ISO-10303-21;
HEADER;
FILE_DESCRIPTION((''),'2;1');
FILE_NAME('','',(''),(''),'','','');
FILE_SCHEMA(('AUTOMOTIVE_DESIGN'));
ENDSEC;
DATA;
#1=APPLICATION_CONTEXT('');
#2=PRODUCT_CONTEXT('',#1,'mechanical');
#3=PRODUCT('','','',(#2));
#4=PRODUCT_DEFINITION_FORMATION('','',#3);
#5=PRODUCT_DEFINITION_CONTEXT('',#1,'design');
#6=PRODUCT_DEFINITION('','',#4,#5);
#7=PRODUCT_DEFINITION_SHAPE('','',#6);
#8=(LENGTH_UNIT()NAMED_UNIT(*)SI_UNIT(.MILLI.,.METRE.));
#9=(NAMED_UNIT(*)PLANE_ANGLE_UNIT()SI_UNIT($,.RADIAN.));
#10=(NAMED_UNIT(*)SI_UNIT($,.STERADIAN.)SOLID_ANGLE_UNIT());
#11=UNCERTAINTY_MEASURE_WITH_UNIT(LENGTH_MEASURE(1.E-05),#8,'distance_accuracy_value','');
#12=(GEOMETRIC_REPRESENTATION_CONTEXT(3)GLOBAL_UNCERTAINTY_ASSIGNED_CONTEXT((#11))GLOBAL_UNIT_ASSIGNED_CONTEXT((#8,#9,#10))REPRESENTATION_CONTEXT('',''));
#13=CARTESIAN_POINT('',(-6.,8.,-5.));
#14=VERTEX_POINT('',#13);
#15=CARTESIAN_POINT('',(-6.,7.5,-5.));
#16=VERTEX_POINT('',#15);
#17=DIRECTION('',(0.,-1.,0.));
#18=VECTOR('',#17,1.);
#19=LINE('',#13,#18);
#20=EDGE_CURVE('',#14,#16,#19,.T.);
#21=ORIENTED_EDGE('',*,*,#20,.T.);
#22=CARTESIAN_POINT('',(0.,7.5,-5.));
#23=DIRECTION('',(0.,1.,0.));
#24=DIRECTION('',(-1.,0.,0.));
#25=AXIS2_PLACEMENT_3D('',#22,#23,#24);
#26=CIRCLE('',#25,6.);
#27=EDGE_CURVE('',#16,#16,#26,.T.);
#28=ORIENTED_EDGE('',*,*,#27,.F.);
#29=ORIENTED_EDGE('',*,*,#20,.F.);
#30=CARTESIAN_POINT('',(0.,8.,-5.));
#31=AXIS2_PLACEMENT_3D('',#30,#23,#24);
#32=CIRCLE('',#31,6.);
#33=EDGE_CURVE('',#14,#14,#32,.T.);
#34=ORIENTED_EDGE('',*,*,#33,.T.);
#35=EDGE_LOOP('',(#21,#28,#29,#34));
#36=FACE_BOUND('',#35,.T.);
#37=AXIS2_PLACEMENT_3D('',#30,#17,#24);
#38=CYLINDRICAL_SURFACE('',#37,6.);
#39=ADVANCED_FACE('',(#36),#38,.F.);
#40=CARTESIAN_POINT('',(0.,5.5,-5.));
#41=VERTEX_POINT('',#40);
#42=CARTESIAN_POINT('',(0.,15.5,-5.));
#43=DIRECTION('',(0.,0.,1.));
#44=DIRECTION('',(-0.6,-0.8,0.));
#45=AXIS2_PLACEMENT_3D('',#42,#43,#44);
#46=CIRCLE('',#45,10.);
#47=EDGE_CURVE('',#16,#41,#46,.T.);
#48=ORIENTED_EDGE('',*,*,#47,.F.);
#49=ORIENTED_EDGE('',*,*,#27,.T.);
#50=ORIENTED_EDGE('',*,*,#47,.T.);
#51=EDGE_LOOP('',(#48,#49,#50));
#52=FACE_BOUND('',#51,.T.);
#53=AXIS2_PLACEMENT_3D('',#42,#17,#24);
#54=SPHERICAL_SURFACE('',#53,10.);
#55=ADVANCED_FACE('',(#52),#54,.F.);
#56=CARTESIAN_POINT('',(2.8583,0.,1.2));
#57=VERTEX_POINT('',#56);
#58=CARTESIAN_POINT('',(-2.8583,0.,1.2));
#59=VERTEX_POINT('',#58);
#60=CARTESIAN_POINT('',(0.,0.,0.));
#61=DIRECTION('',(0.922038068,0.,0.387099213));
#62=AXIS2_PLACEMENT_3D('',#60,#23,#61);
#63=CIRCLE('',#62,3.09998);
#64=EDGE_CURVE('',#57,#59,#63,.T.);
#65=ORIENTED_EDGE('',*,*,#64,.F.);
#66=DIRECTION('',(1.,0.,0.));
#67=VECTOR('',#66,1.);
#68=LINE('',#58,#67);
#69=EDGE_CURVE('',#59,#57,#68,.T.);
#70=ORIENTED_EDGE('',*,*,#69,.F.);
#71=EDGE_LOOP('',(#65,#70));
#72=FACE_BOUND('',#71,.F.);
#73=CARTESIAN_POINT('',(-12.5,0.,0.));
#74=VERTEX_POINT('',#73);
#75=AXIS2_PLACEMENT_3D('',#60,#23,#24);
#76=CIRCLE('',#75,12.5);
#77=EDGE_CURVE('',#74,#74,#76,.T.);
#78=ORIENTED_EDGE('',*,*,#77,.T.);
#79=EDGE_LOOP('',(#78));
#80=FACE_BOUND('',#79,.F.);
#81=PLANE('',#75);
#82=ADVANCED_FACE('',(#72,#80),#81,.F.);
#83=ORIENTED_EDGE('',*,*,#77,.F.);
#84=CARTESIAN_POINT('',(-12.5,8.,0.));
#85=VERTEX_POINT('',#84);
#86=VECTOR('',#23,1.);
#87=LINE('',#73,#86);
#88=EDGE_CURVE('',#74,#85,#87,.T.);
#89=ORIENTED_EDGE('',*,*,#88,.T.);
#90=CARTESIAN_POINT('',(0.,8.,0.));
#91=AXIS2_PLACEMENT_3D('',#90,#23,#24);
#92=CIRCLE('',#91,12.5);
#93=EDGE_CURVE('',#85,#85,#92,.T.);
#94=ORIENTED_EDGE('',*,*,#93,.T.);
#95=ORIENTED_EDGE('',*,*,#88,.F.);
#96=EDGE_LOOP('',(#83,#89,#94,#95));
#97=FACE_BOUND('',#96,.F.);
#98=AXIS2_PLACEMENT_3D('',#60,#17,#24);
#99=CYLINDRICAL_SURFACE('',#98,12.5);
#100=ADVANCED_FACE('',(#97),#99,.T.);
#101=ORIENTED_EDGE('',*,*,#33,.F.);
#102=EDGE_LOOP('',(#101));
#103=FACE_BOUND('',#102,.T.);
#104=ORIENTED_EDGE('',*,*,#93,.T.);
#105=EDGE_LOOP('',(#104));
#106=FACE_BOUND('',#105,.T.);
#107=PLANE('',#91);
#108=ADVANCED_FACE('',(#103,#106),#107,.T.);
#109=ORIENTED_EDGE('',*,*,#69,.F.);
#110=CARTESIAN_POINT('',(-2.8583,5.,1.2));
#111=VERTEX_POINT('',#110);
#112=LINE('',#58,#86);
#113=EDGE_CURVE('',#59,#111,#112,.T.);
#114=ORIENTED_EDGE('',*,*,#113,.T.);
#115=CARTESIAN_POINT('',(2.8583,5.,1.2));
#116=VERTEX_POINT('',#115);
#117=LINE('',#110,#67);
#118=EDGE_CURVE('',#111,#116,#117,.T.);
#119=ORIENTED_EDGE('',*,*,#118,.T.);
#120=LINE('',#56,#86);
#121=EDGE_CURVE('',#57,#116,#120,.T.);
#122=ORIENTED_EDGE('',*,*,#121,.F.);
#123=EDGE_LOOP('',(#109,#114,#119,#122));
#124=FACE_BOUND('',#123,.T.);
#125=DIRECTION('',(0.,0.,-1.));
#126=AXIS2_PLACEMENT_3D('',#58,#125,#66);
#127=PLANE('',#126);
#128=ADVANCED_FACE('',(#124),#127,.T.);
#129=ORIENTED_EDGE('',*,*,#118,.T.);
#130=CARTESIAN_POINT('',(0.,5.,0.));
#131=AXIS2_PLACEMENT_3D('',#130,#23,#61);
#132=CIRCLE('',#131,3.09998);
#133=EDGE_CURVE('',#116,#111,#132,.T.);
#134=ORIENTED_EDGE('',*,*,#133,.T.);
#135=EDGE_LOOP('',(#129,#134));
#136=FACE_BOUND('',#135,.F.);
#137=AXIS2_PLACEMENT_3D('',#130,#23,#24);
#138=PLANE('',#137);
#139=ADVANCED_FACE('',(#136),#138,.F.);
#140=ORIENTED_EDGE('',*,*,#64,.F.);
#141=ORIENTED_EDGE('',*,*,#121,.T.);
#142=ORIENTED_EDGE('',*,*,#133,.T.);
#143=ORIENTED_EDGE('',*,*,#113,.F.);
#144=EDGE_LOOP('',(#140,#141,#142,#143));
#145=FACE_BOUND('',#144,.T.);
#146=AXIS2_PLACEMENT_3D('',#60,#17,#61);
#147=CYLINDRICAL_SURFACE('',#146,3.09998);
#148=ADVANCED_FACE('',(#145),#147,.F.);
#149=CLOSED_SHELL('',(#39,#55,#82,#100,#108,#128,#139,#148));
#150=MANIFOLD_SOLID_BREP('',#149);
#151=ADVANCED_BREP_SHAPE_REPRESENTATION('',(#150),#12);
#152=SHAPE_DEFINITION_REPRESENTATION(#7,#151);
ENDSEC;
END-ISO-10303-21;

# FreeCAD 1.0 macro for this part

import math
import FreeCAD as App
import Part
import Sketcher
Q = App.Units.Quantity

doc = App.newDocument("Part")
body = doc.addObject("PartDesign::Body", "Body")

# Sketch on XZ plane
sketch1 = body.newObject("Sketcher::SketchObject", "Sketch")
sketch1.AttachmentSupport = (doc.getObject("XZ_Plane"), [""])
sketch1.MapMode = "FlatFace"
sketch1.addGeometry(Part.Circle(App.Vector(0, 0, 0), App.Vector(0, 0, 1), 12.5), False)
sketch1.addConstraint(Sketcher.Constraint("Coincident", 0, 3, -1, 1))
sketch1.addConstraint(Sketcher.Constraint("Diameter", 0, Q("25 mm")))
pad1 = body.newObject("PartDesign::Pad", "Pad")
pad1.Profile = sketch1
pad1.Length = 8
pad1.Reversed = True

# Sketch on XY plane
sketch2 = body.newObject("Sketcher::SketchObject", "Sketch001")
sketch2.AttachmentSupport = (doc.getObject("XY_Plane"), [""])
sketch2.MapMode = "FlatFace"
sketch2.AttachmentOffset = App.Placement(App.Vector(0, 0, -5), App.Rotation())
sketch2.addGeometry(Part.LineSegment(App.Vector(-6, 8, 0), App.Vector(-6, 7.5, 0)), False)
sketch2.addGeometry(Part.ArcOfCircle(Part.Circle(App.Vector(0, 15.5, 0), App.Vector(0, 0, 1), 10), math.radians(-126.869898), math.radians(-90)), False)
sketch2.addGeometry(Part.LineSegment(App.Vector(0, 5.5, 0), App.Vector(0, 8, 0)), False)
sketch2.addGeometry(Part.LineSegment(App.Vector(0, 8, 0), App.Vector(-6, 8, 0)), False)
sketch2.addConstraint(Sketcher.Constraint("Coincident", 0, 2, 1, 1))
sketch2.addConstraint(Sketcher.Constraint("Coincident", 1, 2, 2, 1))
sketch2.addConstraint(Sketcher.Constraint("Coincident", 2, 2, 3, 1))
sketch2.addConstraint(Sketcher.Constraint("Coincident", 3, 2, 0, 1))
sketch2.addConstraint(Sketcher.Constraint("Vertical", 0))
sketch2.addConstraint(Sketcher.Constraint("Vertical", 2))
sketch2.addConstraint(Sketcher.Constraint("Horizontal", 3))
sketch2.addConstraint(Sketcher.Constraint("PointOnObject", 1, 3, -2))
sketch2.addConstraint(Sketcher.Constraint("PointOnObject", 1, 2, -2))
sketch2.addConstraint(Sketcher.Constraint("Radius", 1, Q("10 mm")))
sketch2.addConstraint(Sketcher.Constraint("DistanceX", 3, 2, 3, 1, Q("6 mm")))
sketch2.addConstraint(Sketcher.Constraint("DistanceY", 0, 2, 0, 1, Q("0.5 mm")))
sketch2.addConstraint(Sketcher.Constraint("DistanceY", -1, 1, 2, 2, Q("8 mm")))
groove = body.newObject("PartDesign::Groove", "Groove")
groove.Profile = sketch2
groove.ReferenceAxis = (sketch2, ["V_Axis"])
groove.Angle = 360

# Sketch on XZ plane
sketch3 = body.newObject("Sketcher::SketchObject", "Sketch002")
sketch3.AttachmentSupport = (doc.getObject("XZ_Plane"), [""])
sketch3.MapMode = "FlatFace"
sketch3.addGeometry(Part.ArcOfCircle(Part.Circle(App.Vector(0, 0, 0), App.Vector(0, 0, 1), 3.09998), math.radians(157.225876), math.radians(382.774124)), False)
sketch3.addGeometry(Part.LineSegment(App.Vector(-2.8583, 1.2, 0), App.Vector(2.8583, 1.2, 0)), False)
sketch3.addConstraint(Sketcher.Constraint("Coincident", 0, 1, 1, 1))
sketch3.addConstraint(Sketcher.Constraint("Coincident", 1, 2, 0, 2))
sketch3.addConstraint(Sketcher.Constraint("Horizontal", 1))
sketch3.addConstraint(Sketcher.Constraint("Coincident", 0, 3, -1, 1))
sketch3.addConstraint(Sketcher.Constraint("Radius", 0, Q("3.1 mm")))
sketch3.addConstraint(Sketcher.Constraint("DistanceY", -1, 1, 0, 1, Q("1.2 mm")))
pocket1 = body.newObject("PartDesign::Pocket", "Pocket")
pocket1.Profile = sketch3
pocket1.Length = 5

doc.recompute()
